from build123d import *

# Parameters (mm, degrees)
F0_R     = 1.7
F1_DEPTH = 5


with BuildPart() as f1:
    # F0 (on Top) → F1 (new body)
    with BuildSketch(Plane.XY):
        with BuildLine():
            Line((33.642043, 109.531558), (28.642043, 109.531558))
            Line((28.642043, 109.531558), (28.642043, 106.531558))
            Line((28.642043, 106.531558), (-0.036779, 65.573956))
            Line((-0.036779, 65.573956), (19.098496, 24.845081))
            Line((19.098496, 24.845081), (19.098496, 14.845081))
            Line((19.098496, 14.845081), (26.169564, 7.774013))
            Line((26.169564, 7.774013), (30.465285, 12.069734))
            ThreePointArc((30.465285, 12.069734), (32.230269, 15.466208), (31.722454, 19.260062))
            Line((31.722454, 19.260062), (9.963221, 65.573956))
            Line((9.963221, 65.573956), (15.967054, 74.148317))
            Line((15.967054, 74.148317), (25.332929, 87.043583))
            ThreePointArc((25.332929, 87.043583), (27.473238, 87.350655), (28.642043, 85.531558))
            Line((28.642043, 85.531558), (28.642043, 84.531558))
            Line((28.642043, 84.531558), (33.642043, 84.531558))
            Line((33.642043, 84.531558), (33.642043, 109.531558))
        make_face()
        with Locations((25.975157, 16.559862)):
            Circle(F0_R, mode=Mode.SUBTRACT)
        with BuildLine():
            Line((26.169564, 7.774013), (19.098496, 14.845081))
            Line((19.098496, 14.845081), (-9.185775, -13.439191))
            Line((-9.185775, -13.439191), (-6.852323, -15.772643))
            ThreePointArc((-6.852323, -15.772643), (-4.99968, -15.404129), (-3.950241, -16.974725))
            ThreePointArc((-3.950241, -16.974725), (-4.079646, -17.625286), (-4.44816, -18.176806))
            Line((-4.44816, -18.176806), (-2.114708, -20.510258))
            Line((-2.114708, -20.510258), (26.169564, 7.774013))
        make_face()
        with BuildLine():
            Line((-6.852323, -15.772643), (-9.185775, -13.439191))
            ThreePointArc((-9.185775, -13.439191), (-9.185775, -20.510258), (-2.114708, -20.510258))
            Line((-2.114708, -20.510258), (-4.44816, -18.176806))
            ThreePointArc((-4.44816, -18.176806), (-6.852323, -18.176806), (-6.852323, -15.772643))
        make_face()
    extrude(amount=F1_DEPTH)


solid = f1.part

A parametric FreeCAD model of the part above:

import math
import FreeCAD as App
import Part
import Sketcher
Q = App.Units.Quantity

doc = App.newDocument("Part")
body = doc.addObject("PartDesign::Body", "Body")

# Sketch on XY plane
sketch1 = doc.addObject("Sketcher::SketchObject", "Sketch")
body.addObject(sketch1)
sketch1.AttachmentSupport = (doc.XY_Plane, [""])
sketch1.MapMode = "FlatFace"
sketch1.addGeometry([
    Part.LineSegment(App.Vector(33.642043, 109.531558, 0), App.Vector(28.642043, 109.531558, 0)),  # 0
    Part.LineSegment(App.Vector(28.642043, 109.531558, 0), App.Vector(28.642043, 106.531558, 0)),  # 1
    Part.LineSegment(App.Vector(28.642043, 106.531558, 0), App.Vector(-0.036779, 65.573956, 0)),  # 2
    Part.LineSegment(App.Vector(-0.036779, 65.573956, 0), App.Vector(19.098496, 24.845081, 0)),  # 3
    Part.LineSegment(App.Vector(19.098496, 24.845081, 0), App.Vector(19.098496, 14.845081, 0)),  # 4
    Part.LineSegment(App.Vector(19.098496, 14.845081, 0), App.Vector(-9.185775, -13.439191, 0)),  # 5
    Part.ArcOfCircle(Part.Circle(App.Vector(-5.650241, -16.974725, 0), App.Vector(0, 0, 1), 4.999999), math.radians(135), math.radians(315)),  # 6
    Part.LineSegment(App.Vector(-2.114708, -20.510258, 0), App.Vector(26.169564, 7.774013, 0)),  # 7
    Part.LineSegment(App.Vector(26.169564, 7.774013, 0), App.Vector(30.465285, 12.069734, 0)),  # 8
    Part.ArcOfCircle(Part.Circle(App.Vector(25.975159, 16.559862, 0), App.Vector(0, 0, 1), 6.349999), math.radians(-45.000012), math.radians(25.165125)),  # 9
    Part.LineSegment(App.Vector(31.722454, 19.260062, 0), App.Vector(9.963221, 65.573956, 0)),  # 10
    Part.LineSegment(App.Vector(9.963221, 65.573956, 0), App.Vector(15.967054, 74.148317, 0)),  # 11
    Part.LineSegment(App.Vector(15.967054, 74.148317, 0), App.Vector(25.332929, 87.043583, 0)),  # 12
    Part.ArcOfCircle(Part.Circle(App.Vector(26.642043, 85.531558, 0), App.Vector(0, 0, 1), 2), math.radians(0.000007), math.radians(130.88607)),  # 13
    Part.LineSegment(App.Vector(28.642043, 85.531558, 0), App.Vector(28.642043, 84.531558, 0)),  # 14
    Part.LineSegment(App.Vector(28.642043, 84.531558, 0), App.Vector(33.642043, 84.531558, 0)),  # 15
    Part.LineSegment(App.Vector(33.642043, 84.531558, 0), App.Vector(33.642043, 109.531558, 0)),  # 16
    Part.ArcOfCircle(Part.Circle(App.Vector(-5.650241, -16.974725, 0), App.Vector(0, 0, 1), 1.7), math.radians(-0.000009), math.radians(134.999999)),  # 17
    Part.ArcOfCircle(Part.Circle(App.Vector(-5.650242, -16.974723, 0), App.Vector(0, 0, 1), 1.700001), math.radians(-45.000007), math.radians(-0.000053)),  # 18
    Part.ArcOfCircle(Part.Circle(App.Vector(-5.650241, -16.974725, 0), App.Vector(0, 0, 1), 1.7), math.radians(135), math.radians(315)),  # 19
    Part.Circle(App.Vector(25.975157, 16.559862, 0), App.Vector(0, 0, 1), 1.7),  # 20
], False)
sketch1.addConstraint([
    Sketcher.Constraint("Coincident", 0, 2, 1, 1),
    Sketcher.Constraint("Coincident", 1, 2, 2, 1),
    Sketcher.Constraint("Coincident", 2, 2, 3, 1),
    Sketcher.Constraint("Coincident", 3, 2, 4, 1),
    Sketcher.Constraint("Coincident", 4, 2, 5, 1),
    Sketcher.Constraint("Tangent", 5, 2, 6, 1),
    Sketcher.Constraint("Tangent", 6, 2, 7, 1),
    Sketcher.Constraint("Coincident", 7, 2, 8, 1),
    Sketcher.Constraint("Tangent", 8, 2, 9, 1),
    Sketcher.Constraint("Tangent", 9, 2, 10, 1),
    Sketcher.Constraint("Coincident", 10, 2, 11, 1),
    Sketcher.Constraint("Coincident", 11, 2, 12, 1),
    Sketcher.Constraint("Coincident", 12, 2, 13, 2),
    Sketcher.Constraint("Tangent", 13, 1, 14, 1),
    Sketcher.Constraint("Coincident", 14, 2, 15, 1),
    Sketcher.Constraint("Coincident", 15, 2, 16, 1),
    Sketcher.Constraint("Coincident", 16, 2, 0, 1),
    Sketcher.Constraint("Tangent", 17, 1, 18, 2),
    Sketcher.Constraint("Tangent", 18, 1, 19, 2),
    Sketcher.Constraint("Tangent", 19, 1, 17, 2),
    Sketcher.Constraint("Horizontal", 0),
    Sketcher.Constraint("Vertical", 1),
    Sketcher.Constraint("Vertical", 4),
    Sketcher.Constraint("Vertical", 14),
    Sketcher.Constraint("Horizontal", 15),
    Sketcher.Constraint("Vertical", 16),
    Sketcher.Constraint("Coincident", 17, 3, 6, 3),
    Sketcher.Constraint("Coincident", 20, 3, 9, 3),
    Sketcher.Constraint("Equal", 19, 20),
    Sketcher.Constraint("Parallel", 5, 7),
    Sketcher.Constraint("Parallel", 7, 8),
    Sketcher.Constraint("Parallel", 3, 10),
    Sketcher.Constraint("Parallel", 2, 11),
    Sketcher.Constraint("Horizontal", 2, 2, 10, 2),
    Sketcher.Constraint("Horizontal", 19, 3, 17, 1),
    Sketcher.Constraint("Vertical", 1, 2, 13, 1),
    Sketcher.Constraint("Equal", 5, 7),
    Sketcher.Constraint("Radius", 6, 4.999999),
    Sketcher.Constraint("Radius", 13, 2.0),
    Sketcher.Constraint("Diameter", 20, 3.4),
    Sketcher.Constraint("DistanceX", 0, 2, 0, 1, 5.0),
    Sketcher.Constraint("DistanceY", 1, 2, 1, 1, 3.0),
    Sketcher.Constraint("DistanceY", 4, 2, 4, 1, 10.0),
    Sketcher.Constraint("DistanceY", 14, 2, 14, 1, 1.0),
    Sketcher.Constraint("DistanceY", 16, 1, 16, 2, 25.0),
    Sketcher.Constraint("Angle", 2, Q("-125 deg")),
    Sketcher.Constraint("Angle", 5, Q("-134.999999 deg")),
    Sketcher.Constraint("Radius", 9, 6.349999),
    Sketcher.Constraint("Distance", 2, 50.0),
    Sketcher.Constraint("Distance", 3, 45.0),
    Sketcher.Constraint("Distance", 5, 40.0),
    Sketcher.Constraint("DistanceX", 2, 2, 10, 2, 10.0),
    Sketcher.Constraint("DistanceX", 6, 3, 9, 3, 31.6254),
    Sketcher.Constraint("DistanceX", 6, 3, -1, 1, 5.650241),
    Sketcher.Constraint("DistanceY", -1, 1, 9, 3, 16.559862),
    Sketcher.Constraint("DistanceX", -1, 1, 12, 2, 25.332929),
    Sketcher.Constraint("DistanceX", 18, 1, -1, 1, 4.44816),
    Sketcher.Constraint("DistanceY", 10, 2, 11, 2, 8.574361),
    Sketcher.Constraint("DistanceX", 19, 1, 18, 3, 1.202081),
])
pad1 = doc.addObject("PartDesign::Pad", "Pad")
body.addObject(pad1)
pad1.Profile = sketch1
pad1.Length = 5

doc.recompute()
